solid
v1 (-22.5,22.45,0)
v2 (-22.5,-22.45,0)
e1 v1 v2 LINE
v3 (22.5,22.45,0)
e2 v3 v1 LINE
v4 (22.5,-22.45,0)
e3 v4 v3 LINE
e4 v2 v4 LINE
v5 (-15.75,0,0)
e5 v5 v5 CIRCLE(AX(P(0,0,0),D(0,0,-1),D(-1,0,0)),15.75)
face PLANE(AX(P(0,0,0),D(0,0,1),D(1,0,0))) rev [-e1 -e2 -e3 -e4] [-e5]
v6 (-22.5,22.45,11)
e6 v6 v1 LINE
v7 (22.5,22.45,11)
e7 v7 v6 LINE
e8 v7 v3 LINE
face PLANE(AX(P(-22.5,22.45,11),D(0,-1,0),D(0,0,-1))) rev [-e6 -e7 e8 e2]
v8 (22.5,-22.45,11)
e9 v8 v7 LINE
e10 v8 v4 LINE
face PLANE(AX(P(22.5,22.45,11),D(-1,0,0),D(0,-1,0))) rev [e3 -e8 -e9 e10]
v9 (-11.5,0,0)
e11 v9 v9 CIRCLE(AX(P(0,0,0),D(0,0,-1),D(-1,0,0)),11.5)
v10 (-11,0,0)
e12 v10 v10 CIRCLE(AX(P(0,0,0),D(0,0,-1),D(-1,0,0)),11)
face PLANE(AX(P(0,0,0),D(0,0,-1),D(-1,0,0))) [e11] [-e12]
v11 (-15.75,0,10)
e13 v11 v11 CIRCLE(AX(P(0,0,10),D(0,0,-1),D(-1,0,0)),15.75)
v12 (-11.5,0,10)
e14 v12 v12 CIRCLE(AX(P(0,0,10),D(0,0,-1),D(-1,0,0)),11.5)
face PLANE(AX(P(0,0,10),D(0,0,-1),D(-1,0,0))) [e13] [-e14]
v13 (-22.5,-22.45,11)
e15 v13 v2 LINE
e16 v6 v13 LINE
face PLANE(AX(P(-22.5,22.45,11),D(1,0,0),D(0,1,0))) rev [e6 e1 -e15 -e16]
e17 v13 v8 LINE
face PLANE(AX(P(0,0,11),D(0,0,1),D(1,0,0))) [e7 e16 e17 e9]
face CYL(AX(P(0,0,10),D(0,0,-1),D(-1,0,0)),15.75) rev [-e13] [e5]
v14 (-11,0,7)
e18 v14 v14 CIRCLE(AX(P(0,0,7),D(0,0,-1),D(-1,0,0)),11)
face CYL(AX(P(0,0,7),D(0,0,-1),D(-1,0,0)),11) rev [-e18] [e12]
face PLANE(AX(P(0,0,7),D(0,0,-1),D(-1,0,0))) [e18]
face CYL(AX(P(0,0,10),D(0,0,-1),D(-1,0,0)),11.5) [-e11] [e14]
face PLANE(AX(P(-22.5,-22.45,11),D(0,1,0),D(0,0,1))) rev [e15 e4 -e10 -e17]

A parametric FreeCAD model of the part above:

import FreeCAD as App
import Part
import Sketcher

V = App.Vector

doc = App.newDocument("Part")
body = doc.addObject("PartDesign::Body", "Body")

sketch1 = body.newObject("Sketcher::SketchObject", "Sketch")
sketch1.AttachmentSupport = (doc.getObject("XY_Plane"), [""])
sketch1.MapMode = "FlatFace"
sketch1.addGeometry(Part.LineSegment(V(-22, 22, 0), V(-22, -22, 0)), False)
sketch1.addGeometry(Part.LineSegment(V(-22, -22, 0), V(22, -22, 0)), False)
sketch1.addGeometry(Part.LineSegment(V(22, -22, 0), V(22, 22, 0)), False)
sketch1.addGeometry(Part.LineSegment(V(22, 22, 0), V(-22, 22, 0)), False)
sketch1.addConstraint(Sketcher.Constraint("Coincident", 0, 2, 1, 1))
sketch1.addConstraint(Sketcher.Constraint("Coincident", 1, 2, 2, 1))
sketch1.addConstraint(Sketcher.Constraint("Coincident", 2, 2, 3, 1))
sketch1.addConstraint(Sketcher.Constraint("Coincident", 3, 2, 0, 1))
sketch1.addConstraint(Sketcher.Constraint("Vertical", 0))
sketch1.addConstraint(Sketcher.Constraint("Horizontal", 1))
sketch1.addConstraint(Sketcher.Constraint("Vertical", 2))
sketch1.addConstraint(Sketcher.Constraint("Horizontal", 3))
sketch1.addConstraint(Sketcher.Constraint("Symmetric", 0, 2, 2, 2, -1, 1))
sketch1.addConstraint(Sketcher.Constraint("DistanceX", 1, 1, 1, 2, 45.0))
sketch1.addConstraint(Sketcher.Constraint("DistanceY", 0, 2, 0, 1, 44.9))
pad1 = body.newObject("PartDesign::Pad", "Pad")
pad1.Profile = sketch1
pad1.Length = 11

sketch2 = body.newObject("Sketcher::SketchObject", "Sketch001")
sketch2.AttachmentSupport = (doc.getObject("XY_Plane"), [""])
sketch2.MapMode = "FlatFace"
sketch2.addGeometry(Part.Circle(V(0, 0, 0), V(0, 0, 1), 16), False)
sketch2.addConstraint(Sketcher.Constraint("Coincident", 0, 3, -1, 1))
sketch2.addConstraint(Sketcher.Constraint("Diameter", 0, 31.5))
pocket1 = body.newObject("PartDesign::Pocket", "Pocket")
pocket1.Profile = sketch2
pocket1.Length = 10
pocket1.Reversed = True

sketch3 = body.newObject("Sketcher::SketchObject", "Sketch002")
sketch3.AttachmentSupport = (doc.getObject("XY_Plane"), [""])
sketch3.MapMode = "FlatFace"
sketch3.addGeometry(Part.Circle(V(0, 0, 0), V(0, 0, 1), 12), False)
sketch3.addConstraint(Sketcher.Constraint("Coincident", 0, 3, -1, 1))
sketch3.addConstraint(Sketcher.Constraint("Diameter", 0, 23.0))
pad2 = body.newObject("PartDesign::Pad", "Pad001")
pad2.Profile = sketch3
pad2.Length = 10

sketch4 = body.newObject("Sketcher::SketchObject", "Sketch003")
sketch4.AttachmentSupport = (doc.getObject("XY_Plane"), [""])
sketch4.MapMode = "FlatFace"
sketch4.addGeometry(Part.Circle(V(0, 0, 0), V(0, 0, 1), 11), False)
sketch4.addConstraint(Sketcher.Constraint("Coincident", 0, 3, -1, 1))
sketch4.addConstraint(Sketcher.Constraint("Diameter", 0, 22.0))
pocket2 = body.newObject("PartDesign::Pocket", "Pocket001")
pocket2.Profile = sketch4
pocket2.Length = 7
pocket2.Reversed = True

doc.recompute()
